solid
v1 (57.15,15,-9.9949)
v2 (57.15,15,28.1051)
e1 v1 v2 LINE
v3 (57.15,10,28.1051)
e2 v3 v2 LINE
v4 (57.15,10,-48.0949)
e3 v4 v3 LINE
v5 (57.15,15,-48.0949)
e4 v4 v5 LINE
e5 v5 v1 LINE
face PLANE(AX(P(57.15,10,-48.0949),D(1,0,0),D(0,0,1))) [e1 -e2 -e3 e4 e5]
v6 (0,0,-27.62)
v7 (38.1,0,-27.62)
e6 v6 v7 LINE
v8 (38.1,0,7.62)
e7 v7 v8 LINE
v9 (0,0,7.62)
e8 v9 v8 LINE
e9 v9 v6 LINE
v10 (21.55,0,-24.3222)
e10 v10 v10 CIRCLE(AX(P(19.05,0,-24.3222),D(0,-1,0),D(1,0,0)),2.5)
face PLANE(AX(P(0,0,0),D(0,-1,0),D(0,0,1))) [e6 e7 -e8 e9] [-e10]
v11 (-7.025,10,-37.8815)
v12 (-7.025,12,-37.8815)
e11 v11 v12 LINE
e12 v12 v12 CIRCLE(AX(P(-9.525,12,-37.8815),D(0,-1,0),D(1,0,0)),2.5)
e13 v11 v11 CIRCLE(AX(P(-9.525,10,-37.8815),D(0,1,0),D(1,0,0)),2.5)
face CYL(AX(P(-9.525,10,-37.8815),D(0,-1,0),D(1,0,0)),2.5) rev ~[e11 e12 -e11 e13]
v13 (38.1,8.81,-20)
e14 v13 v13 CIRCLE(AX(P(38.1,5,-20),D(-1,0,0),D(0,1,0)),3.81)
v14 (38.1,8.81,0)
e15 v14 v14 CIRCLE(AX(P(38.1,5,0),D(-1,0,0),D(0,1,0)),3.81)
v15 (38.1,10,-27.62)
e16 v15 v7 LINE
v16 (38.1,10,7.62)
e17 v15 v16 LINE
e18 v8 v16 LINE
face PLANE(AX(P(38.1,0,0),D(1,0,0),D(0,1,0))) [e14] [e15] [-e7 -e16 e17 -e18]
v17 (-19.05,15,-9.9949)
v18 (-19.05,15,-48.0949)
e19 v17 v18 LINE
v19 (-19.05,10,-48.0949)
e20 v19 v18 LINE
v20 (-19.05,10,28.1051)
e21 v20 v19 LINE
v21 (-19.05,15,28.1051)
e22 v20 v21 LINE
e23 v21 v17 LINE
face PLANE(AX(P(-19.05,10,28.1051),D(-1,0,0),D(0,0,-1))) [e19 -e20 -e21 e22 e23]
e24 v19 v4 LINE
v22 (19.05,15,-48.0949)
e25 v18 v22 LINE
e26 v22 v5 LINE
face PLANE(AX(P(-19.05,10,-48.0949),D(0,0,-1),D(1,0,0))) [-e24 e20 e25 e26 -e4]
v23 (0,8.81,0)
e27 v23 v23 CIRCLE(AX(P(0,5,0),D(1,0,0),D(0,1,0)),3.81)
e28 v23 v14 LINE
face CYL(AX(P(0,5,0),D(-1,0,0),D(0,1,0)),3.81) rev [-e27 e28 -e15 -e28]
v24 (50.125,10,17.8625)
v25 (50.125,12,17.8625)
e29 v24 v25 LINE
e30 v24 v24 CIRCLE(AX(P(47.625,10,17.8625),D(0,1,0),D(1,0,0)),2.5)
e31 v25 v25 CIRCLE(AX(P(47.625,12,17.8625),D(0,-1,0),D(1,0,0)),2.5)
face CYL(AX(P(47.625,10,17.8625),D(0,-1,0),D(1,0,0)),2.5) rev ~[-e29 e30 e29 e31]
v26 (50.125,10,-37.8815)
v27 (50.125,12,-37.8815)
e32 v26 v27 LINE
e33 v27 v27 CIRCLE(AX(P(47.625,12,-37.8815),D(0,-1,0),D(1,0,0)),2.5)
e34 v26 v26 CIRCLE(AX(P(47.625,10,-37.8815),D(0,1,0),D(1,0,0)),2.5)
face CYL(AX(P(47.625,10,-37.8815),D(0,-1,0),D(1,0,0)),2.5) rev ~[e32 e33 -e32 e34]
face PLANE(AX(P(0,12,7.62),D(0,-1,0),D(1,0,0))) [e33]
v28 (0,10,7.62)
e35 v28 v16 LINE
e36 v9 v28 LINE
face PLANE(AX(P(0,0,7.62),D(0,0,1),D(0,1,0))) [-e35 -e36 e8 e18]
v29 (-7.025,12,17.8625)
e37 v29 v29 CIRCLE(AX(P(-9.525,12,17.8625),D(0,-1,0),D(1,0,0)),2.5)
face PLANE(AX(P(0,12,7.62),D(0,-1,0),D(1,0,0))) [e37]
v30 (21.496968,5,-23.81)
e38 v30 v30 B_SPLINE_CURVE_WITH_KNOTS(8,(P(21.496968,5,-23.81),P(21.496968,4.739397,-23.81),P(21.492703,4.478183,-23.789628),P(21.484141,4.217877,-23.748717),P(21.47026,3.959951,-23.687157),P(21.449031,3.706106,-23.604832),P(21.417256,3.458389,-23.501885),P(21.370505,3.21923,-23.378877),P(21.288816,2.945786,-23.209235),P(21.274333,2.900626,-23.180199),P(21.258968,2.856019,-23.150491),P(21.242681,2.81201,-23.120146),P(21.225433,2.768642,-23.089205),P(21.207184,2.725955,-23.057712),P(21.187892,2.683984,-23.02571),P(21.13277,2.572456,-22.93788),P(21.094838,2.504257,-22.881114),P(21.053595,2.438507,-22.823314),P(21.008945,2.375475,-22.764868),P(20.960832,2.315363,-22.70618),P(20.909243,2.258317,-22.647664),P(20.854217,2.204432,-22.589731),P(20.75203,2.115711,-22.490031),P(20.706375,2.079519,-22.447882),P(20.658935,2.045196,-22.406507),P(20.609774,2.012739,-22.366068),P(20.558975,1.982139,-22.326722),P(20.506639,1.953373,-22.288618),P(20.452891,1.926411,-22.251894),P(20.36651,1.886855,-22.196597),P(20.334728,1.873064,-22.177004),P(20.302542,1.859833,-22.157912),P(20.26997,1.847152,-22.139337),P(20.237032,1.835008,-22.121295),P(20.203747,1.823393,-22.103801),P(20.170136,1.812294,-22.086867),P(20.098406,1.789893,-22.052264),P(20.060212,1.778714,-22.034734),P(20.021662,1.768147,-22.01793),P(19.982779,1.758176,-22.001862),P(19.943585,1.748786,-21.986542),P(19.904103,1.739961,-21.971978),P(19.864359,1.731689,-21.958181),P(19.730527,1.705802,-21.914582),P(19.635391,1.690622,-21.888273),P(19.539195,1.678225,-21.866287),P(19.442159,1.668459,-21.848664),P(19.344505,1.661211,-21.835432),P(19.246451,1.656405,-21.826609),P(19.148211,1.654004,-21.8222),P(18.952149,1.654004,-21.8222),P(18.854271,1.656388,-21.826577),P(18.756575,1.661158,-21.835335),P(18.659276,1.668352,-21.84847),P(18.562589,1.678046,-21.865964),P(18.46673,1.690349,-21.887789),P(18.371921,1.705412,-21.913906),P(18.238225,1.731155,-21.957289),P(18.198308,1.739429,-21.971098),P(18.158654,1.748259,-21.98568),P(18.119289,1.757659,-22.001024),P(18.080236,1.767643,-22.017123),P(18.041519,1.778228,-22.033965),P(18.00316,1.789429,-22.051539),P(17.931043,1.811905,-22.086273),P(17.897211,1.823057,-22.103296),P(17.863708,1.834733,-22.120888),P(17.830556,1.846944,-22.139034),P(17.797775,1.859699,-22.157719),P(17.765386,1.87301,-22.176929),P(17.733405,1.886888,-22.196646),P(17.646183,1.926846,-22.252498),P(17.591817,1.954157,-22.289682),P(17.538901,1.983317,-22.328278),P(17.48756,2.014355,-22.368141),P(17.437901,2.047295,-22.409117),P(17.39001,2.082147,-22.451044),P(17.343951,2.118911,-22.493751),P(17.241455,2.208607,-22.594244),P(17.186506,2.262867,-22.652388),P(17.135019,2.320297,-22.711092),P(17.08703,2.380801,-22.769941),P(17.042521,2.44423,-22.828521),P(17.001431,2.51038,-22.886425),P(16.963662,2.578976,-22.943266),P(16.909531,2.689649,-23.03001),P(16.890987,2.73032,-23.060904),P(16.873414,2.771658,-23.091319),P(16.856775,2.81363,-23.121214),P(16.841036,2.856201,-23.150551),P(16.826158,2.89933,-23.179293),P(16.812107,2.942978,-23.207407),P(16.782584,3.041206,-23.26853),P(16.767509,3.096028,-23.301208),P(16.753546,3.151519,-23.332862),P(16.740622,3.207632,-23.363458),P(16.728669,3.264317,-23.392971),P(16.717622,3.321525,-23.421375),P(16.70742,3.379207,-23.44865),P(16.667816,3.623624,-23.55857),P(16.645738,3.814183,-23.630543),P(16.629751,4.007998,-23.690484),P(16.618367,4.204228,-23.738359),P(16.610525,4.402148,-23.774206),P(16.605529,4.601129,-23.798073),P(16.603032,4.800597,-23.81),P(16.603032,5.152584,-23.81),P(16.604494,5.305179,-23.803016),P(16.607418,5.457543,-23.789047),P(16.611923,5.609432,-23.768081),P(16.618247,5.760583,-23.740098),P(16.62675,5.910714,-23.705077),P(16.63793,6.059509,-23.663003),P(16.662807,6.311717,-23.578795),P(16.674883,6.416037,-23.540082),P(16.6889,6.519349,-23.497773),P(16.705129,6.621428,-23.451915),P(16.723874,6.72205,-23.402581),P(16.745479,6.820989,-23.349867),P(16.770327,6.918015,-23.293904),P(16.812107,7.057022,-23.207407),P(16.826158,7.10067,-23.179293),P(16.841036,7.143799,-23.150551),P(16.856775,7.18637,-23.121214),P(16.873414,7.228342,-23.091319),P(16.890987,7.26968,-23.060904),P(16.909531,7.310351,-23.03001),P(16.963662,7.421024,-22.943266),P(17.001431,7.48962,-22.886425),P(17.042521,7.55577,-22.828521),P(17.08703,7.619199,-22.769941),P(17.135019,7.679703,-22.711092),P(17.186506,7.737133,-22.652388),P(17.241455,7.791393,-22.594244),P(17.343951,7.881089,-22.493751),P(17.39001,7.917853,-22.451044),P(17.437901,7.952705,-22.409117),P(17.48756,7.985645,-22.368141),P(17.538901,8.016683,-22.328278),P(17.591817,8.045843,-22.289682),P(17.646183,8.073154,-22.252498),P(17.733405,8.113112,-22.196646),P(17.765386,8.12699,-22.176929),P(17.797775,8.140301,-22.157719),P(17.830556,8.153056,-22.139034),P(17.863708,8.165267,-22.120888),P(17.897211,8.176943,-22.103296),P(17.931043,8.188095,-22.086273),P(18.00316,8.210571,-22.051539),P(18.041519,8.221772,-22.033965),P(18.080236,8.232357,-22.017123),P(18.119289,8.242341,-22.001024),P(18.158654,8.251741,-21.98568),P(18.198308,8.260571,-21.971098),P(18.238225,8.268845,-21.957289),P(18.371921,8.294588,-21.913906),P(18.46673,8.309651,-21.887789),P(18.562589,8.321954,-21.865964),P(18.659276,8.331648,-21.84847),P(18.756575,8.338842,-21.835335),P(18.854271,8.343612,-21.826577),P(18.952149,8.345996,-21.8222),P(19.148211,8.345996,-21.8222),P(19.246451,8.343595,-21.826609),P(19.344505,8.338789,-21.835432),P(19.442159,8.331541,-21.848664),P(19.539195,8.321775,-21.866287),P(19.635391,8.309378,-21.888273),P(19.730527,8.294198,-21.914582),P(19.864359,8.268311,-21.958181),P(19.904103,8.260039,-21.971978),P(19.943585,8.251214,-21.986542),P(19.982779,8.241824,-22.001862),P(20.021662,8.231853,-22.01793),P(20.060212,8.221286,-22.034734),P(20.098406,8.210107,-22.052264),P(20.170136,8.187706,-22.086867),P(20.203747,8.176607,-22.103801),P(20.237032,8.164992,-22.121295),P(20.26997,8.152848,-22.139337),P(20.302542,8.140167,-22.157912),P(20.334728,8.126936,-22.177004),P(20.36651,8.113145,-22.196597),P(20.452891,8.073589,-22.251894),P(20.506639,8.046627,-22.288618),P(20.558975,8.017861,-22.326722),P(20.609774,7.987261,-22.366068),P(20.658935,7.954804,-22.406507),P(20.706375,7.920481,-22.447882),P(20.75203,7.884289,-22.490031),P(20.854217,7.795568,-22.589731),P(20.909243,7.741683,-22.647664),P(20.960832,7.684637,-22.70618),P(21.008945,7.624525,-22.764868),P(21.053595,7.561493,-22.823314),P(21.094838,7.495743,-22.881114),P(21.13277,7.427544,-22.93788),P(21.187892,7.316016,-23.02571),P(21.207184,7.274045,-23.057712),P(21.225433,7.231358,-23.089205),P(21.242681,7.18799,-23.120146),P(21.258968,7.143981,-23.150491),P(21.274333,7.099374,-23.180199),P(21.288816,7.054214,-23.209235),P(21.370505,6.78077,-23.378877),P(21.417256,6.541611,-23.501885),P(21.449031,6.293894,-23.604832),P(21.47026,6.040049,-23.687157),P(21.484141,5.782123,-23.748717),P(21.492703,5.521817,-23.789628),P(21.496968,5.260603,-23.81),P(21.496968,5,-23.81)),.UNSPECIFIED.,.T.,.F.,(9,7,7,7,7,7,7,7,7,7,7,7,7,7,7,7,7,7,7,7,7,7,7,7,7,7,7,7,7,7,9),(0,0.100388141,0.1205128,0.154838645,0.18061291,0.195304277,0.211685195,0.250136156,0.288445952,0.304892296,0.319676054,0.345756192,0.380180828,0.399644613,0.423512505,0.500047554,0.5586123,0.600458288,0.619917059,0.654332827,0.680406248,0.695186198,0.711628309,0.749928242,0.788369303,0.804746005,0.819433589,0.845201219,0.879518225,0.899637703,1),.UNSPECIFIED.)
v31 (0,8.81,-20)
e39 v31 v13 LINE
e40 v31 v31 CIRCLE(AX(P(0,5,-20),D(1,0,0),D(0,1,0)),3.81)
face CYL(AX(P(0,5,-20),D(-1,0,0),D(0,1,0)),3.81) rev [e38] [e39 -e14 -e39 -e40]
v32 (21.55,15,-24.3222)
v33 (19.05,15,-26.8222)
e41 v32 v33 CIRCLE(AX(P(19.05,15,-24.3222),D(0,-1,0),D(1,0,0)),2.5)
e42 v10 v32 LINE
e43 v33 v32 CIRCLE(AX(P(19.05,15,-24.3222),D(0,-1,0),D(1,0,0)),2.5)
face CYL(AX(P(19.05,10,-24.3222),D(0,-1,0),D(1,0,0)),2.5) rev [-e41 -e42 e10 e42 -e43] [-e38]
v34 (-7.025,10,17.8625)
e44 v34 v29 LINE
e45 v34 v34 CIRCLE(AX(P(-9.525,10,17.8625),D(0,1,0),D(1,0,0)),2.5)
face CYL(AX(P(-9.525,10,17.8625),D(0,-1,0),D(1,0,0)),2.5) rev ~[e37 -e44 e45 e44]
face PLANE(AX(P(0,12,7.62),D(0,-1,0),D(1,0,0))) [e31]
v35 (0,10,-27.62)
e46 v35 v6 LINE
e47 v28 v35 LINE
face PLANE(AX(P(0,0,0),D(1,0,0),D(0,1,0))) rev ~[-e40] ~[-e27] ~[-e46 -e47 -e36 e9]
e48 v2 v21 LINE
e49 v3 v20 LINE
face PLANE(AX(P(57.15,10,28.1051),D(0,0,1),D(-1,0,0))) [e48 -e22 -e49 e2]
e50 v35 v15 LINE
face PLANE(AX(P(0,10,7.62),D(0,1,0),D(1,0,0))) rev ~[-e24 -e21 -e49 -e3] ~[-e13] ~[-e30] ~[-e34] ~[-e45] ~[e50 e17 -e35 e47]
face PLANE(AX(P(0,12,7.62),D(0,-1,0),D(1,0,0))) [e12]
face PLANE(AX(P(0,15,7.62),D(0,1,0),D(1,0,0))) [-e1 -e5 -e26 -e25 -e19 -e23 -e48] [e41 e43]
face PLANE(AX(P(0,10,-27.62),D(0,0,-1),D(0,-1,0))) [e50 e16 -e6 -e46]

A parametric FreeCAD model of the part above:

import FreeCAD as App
import Part
import Sketcher
Q = App.Units.Quantity

doc = App.newDocument("Part")
params = doc.addObject("Spreadsheet::Sheet", "Params")
for row, (alias, value) in enumerate([
    ("pad1_length", "1.5 in"),
    ("sketch2_diameter", "0.3 in"),
    ("pocket1_length", "1.5 in"),
    ("sketch3_width", "3 in"),
    ("pad2_length", "5 mm"),
    ("pocket2_length", "2 mm"),
    ("pocket3_length", "1 in"),
], start=1):
    params.set(f"A{row}", alias)
    params.set(f"B{row}", "=" + value)
    params.setAlias(f"B{row}", alias)

body = doc.addObject("PartDesign::Body", "Body")

# Sketch on YZ plane
sketch1 = doc.addObject("Sketcher::SketchObject", "Sketch")
body.addObject(sketch1)
sketch1.AttachmentSupport = (doc.YZ_Plane, [""])
sketch1.MapMode = "FlatFace"
sketch1.addGeometry(Part.LineSegment(App.Vector(0, 8, 0), App.Vector(0, -28, 0)), False)
sketch1.addGeometry(Part.LineSegment(App.Vector(0, -28, 0), App.Vector(10, -28, 0)), False)
sketch1.addGeometry(Part.LineSegment(App.Vector(10, -28, 0), App.Vector(10, 8, 0)), False)
sketch1.addGeometry(Part.LineSegment(App.Vector(10, 8, 0), App.Vector(0, 8, 0)), False)
sketch1.addConstraint(Sketcher.Constraint("Coincident", 0, 2, 1, 1))
sketch1.addConstraint(Sketcher.Constraint("Coincident", 1, 2, 2, 1))
sketch1.addConstraint(Sketcher.Constraint("Coincident", 2, 2, 3, 1))
sketch1.addConstraint(Sketcher.Constraint("Coincident", 3, 2, 0, 1))
sketch1.addConstraint(Sketcher.Constraint("Vertical", 0))
sketch1.addConstraint(Sketcher.Constraint("Horizontal", 1))
sketch1.addConstraint(Sketcher.Constraint("Vertical", 2))
sketch1.addConstraint(Sketcher.Constraint("Horizontal", 3))
sketch1.addConstraint(Sketcher.Constraint("PointOnObject", 0, 2, -2))
sketch1.addConstraint(Sketcher.Constraint("DistanceY", -1, 1, 2, 2, Q("0.3 in")))
sketch1.addConstraint(Sketcher.Constraint("DistanceX", 1, 1, 1, 2, Q("0.3937 in")))
sketch1.addConstraint(Sketcher.Constraint("DistanceY", 0, 2, 0, 1, Q("1.3874 in")))
pad1 = doc.addObject("PartDesign::Pad", "Pad")
body.addObject(pad1)
pad1.Profile = sketch1
pad1.setExpression("Length", "Params.pad1_length")

# Sketch on YZ plane
sketch2 = doc.addObject("Sketcher::SketchObject", "Sketch001")
body.addObject(sketch2)
sketch2.AttachmentSupport = (doc.YZ_Plane, [""])
sketch2.MapMode = "FlatFace"
sketch2.addGeometry(Part.Circle(App.Vector(5, 0, 0), App.Vector(0, 0, 1), 3.8), False)
sketch2.addGeometry(Part.Circle(App.Vector(5, -20, 0), App.Vector(0, 0, 1), 3.8), False)
sketch2.addConstraint(Sketcher.Constraint("Equal", 0, 1))
sketch2.addConstraint(Sketcher.Constraint("PointOnObject", 0, 3, -1))
sketch2.addConstraint(Sketcher.Constraint("Vertical", 0, 3, 1, 3))
sketch2.addConstraint(Sketcher.Constraint("Diameter", 0, Q("0.3 in")))
sketch2.addConstraint(Sketcher.Constraint("DistanceY", 1, 3, -1, 1, Q("0.7874 in")))
sketch2.addConstraint(Sketcher.Constraint("DistanceX", -1, 1, 0, 3, 5.0))
sketch2.setExpression("Constraints[3]", "Params.sketch2_diameter")
pocket1 = doc.addObject("PartDesign::Pocket", "Pocket")
body.addObject(pocket1)
pocket1.Profile = sketch2
pocket1.setExpression("Length", "Params.pocket1_length")
pocket1.Reversed = True

# Sketch on XZ plane
sketch3 = doc.addObject("Sketcher::SketchObject", "Sketch002")
body.addObject(sketch3)
sketch3.AttachmentSupport = (doc.XZ_Plane, [""])
sketch3.MapMode = "FlatFace"
sketch3.AttachmentOffset = App.Placement(App.Vector(0, 0, -0.3937008 * 25.4), App.Rotation())
sketch3.addGeometry(Part.LineSegment(App.Vector(-19, 28, 0), App.Vector(57, 28, 0)), False)
sketch3.addGeometry(Part.LineSegment(App.Vector(57, 28, 0), App.Vector(57, -10, 0)), False)
sketch3.addGeometry(Part.LineSegment(App.Vector(57, -10, 0), App.Vector(57, -48, 0)), False)
sketch3.addGeometry(Part.LineSegment(App.Vector(57, -48, 0), App.Vector(19, -48, 0)), False)
sketch3.addGeometry(Part.LineSegment(App.Vector(19, -48, 0), App.Vector(-19, -48, 0)), False)
sketch3.addGeometry(Part.LineSegment(App.Vector(-19, -48, 0), App.Vector(-19, -10, 0)), False)
sketch3.addGeometry(Part.LineSegment(App.Vector(-19, -10, 0), App.Vector(-19, 28, 0)), False)
sketch3.addConstraint(Sketcher.Constraint("Coincident", 0, 2, 1, 1))
sketch3.addConstraint(Sketcher.Constraint("Coincident", 1, 2, 2, 1))
sketch3.addConstraint(Sketcher.Constraint("Coincident", 2, 2, 3, 1))
sketch3.addConstraint(Sketcher.Constraint("Coincident", 3, 2, 4, 1))
sketch3.addConstraint(Sketcher.Constraint("Coincident", 4, 2, 5, 1))
sketch3.addConstraint(Sketcher.Constraint("Coincident", 5, 2, 6, 1))
sketch3.addConstraint(Sketcher.Constraint("Coincident", 6, 2, 0, 1))
sketch3.addConstraint(Sketcher.Constraint("Horizontal", 0))
sketch3.addConstraint(Sketcher.Constraint("Vertical", 1))
sketch3.addConstraint(Sketcher.Constraint("Vertical", 2))
sketch3.addConstraint(Sketcher.Constraint("Horizontal", 3))
sketch3.addConstraint(Sketcher.Constraint("Horizontal", 4))
sketch3.addConstraint(Sketcher.Constraint("Vertical", 5))
sketch3.addConstraint(Sketcher.Constraint("Vertical", 6))
sketch3.addConstraint(Sketcher.Constraint("Horizontal", 1, 2, 5, 2))
sketch3.addConstraint(Sketcher.Constraint("Equal", 3, 4))
sketch3.addConstraint(Sketcher.Constraint("Equal", 4, 1))
sketch3.addConstraint(Sketcher.Constraint("Equal", 1, 2))
sketch3.addConstraint(Sketcher.Constraint("DistanceX", 0, 1, 0, 2, Q("3 in")))
sketch3.addConstraint(Sketcher.Constraint("DistanceX", -1, 1, 3, 2, Q("0.75 in")))
sketch3.addConstraint(Sketcher.Constraint("DistanceY", -1, 1, 0, 2, Q("1.1065 in")))
sketch3.setExpression("Constraints[18]", "Params.sketch3_width")
pad2 = doc.addObject("PartDesign::Pad", "Pad001")
body.addObject(pad2)
pad2.Profile = sketch3
pad2.setExpression("Length", "Params.pad2_length")
pad2.Reversed = True

# Sketch on XZ plane
sketch4 = doc.addObject("Sketcher::SketchObject", "Sketch003")
body.addObject(sketch4)
sketch4.AttachmentSupport = (doc.XZ_Plane, [""])
sketch4.MapMode = "FlatFace"
sketch4.AttachmentOffset = App.Placement(App.Vector(0, 0, -0.3937008 * 25.4), App.Rotation())
sketch4.addGeometry(Part.Circle(App.Vector(47.6, -37.9, 0), App.Vector(0, 0, 1), 2.5), False)
sketch4.addGeometry(Part.Circle(App.Vector(47.6, 17.9, 0), App.Vector(0, 0, 1), 2.5), False)
sketch4.addGeometry(Part.Circle(App.Vector(-9.5, -37.9, 0), App.Vector(0, 0, 1), 2.5), False)
sketch4.addGeometry(Part.Circle(App.Vector(-9.5, 17.9, 0), App.Vector(0, 0, 1), 2.5), False)
sketch4.addConstraint(Sketcher.Constraint("Equal", 0, 1))
sketch4.addConstraint(Sketcher.Constraint("Equal", 1, 2))
sketch4.addConstraint(Sketcher.Constraint("Equal", 2, 3))
sketch4.addConstraint(Sketcher.Constraint("Horizontal", 0, 3, 2, 3))
sketch4.addConstraint(Sketcher.Constraint("Horizontal", 1, 3, 3, 3))
sketch4.addConstraint(Sketcher.Constraint("Vertical", 0, 3, 1, 3))
sketch4.addConstraint(Sketcher.Constraint("Vertical", 2, 3, 3, 3))
sketch4.addConstraint(Sketcher.Constraint("Diameter", 0, 5.0))
sketch4.addConstraint(Sketcher.Constraint("DistanceX", 2, 3, 0, 3, Q("2.25 in")))
sketch4.addConstraint(Sketcher.Constraint("DistanceX", 2, 3, -1, 1, Q("0.375 in")))
sketch4.addConstraint(Sketcher.Constraint("DistanceY", 0, 3, -1, 1, Q("1.4914 in")))
sketch4.addConstraint(Sketcher.Constraint("DistanceY", -1, 1, 1, 3, 17.8625))
pocket2 = doc.addObject("PartDesign::Pocket", "Pocket001")
body.addObject(pocket2)
pocket2.Profile = sketch4
pocket2.setExpression("Length", "Params.pocket2_length")

# Sketch on XZ plane
sketch5 = doc.addObject("Sketcher::SketchObject", "Sketch004")
body.addObject(sketch5)
sketch5.AttachmentSupport = (doc.XZ_Plane, [""])
sketch5.MapMode = "FlatFace"
sketch5.AttachmentOffset = App.Placement(App.Vector(0, 0, -0.3937008 * 25.4), App.Rotation())
sketch5.addGeometry(Part.Circle(App.Vector(19.1, -24.3, 0), App.Vector(0, 0, 1), 2.5), False)
sketch5.addConstraint(Sketcher.Constraint("Diameter", 0, 5.0))
sketch5.addConstraint(Sketcher.Constraint("DistanceX", -1, 1, 0, 3, Q("0.75 in")))
sketch5.addConstraint(Sketcher.Constraint("DistanceY", 0, 3, -1, 1, 24.3222))
pocket3 = doc.addObject("PartDesign::Pocket", "Pocket002")
body.addObject(pocket3)
pocket3.Profile = sketch5
pocket3.setExpression("Length", "Params.pocket3_length")
pocket3.Midplane = True

doc.recompute()
